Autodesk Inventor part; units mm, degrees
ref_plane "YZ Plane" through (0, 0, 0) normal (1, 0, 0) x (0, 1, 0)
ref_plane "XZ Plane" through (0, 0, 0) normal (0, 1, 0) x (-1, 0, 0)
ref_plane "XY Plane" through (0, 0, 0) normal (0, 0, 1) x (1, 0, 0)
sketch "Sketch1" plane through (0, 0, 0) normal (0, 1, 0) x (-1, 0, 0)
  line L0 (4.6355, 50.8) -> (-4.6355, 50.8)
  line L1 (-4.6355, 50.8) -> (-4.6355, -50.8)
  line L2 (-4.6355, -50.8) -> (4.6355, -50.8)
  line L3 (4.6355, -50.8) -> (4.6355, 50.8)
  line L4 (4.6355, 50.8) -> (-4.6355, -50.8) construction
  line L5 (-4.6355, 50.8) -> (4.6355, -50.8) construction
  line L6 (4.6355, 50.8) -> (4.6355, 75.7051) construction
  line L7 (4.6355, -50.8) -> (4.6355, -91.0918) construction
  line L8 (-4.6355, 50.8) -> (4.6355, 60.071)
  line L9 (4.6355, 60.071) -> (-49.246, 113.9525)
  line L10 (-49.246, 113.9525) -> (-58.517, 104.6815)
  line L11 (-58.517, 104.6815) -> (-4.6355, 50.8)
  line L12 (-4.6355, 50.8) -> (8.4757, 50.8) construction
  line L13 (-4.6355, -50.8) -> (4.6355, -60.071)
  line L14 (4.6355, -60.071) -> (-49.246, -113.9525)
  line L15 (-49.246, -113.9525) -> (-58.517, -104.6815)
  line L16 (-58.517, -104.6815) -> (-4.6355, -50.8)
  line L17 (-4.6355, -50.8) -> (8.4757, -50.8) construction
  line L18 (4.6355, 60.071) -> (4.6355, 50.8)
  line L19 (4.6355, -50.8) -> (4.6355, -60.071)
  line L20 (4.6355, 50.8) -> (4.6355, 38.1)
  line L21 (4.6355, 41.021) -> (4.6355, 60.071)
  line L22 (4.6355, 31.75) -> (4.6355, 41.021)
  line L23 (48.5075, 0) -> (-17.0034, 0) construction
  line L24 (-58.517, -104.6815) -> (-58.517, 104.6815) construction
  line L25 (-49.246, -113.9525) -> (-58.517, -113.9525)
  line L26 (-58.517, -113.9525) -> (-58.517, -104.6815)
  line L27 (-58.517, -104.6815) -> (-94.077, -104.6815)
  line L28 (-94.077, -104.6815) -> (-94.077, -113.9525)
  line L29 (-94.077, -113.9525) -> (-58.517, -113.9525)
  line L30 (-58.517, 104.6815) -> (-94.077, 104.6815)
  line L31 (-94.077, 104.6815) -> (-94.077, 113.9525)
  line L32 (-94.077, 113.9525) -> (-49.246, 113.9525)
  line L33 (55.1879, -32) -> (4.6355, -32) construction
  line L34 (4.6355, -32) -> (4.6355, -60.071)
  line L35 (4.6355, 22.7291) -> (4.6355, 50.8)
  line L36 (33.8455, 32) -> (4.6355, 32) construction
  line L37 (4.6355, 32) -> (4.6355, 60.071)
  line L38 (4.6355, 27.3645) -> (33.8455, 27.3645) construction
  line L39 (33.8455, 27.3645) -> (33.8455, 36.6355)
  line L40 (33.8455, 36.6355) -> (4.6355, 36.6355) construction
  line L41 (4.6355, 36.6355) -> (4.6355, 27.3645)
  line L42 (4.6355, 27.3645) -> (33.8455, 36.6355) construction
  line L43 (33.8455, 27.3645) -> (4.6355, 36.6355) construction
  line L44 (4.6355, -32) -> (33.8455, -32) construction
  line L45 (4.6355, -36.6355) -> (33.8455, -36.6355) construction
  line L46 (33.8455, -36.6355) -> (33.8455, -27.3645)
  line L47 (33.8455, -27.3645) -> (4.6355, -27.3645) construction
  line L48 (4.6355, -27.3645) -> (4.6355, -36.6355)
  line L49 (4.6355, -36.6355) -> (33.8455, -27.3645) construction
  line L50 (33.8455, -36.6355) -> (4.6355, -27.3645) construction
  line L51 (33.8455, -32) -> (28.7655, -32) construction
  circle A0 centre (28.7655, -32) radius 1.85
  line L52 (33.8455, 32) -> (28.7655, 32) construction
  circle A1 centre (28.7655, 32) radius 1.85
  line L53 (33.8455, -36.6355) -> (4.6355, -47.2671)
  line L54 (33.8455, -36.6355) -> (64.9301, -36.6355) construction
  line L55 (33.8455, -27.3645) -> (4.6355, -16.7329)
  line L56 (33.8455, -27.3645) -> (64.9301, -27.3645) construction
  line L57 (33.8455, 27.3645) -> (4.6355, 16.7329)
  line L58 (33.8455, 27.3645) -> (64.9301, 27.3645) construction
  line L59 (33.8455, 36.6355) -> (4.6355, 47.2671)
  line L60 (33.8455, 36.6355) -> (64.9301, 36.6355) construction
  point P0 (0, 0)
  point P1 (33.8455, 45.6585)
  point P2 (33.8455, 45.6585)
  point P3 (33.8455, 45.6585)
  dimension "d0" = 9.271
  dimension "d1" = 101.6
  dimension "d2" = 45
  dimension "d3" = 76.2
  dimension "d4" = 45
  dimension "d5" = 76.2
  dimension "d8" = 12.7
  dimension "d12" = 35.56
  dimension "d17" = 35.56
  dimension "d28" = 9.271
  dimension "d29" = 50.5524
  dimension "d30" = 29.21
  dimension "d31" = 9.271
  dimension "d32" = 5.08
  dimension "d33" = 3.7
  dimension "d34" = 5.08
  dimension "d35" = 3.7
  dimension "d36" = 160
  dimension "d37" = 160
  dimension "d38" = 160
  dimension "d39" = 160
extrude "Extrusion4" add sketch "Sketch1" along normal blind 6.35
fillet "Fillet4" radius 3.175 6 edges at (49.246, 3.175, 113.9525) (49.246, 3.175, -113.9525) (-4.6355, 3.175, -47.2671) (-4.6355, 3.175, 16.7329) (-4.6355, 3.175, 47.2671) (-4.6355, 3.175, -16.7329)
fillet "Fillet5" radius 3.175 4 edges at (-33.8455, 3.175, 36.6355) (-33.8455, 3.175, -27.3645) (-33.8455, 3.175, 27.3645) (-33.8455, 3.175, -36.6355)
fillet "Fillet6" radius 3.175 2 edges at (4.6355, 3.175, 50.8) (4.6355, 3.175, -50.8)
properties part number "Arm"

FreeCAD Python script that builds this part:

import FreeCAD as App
import Part
import Sketcher

V = App.Vector
Q = App.Units.Quantity


def edges_at(feature, points):
    """Names of the edges that pass closest to the given points."""
    edges = feature.Shape.Edges
    near = lambda p: min(range(len(edges)), key=lambda i: edges[i].distToShape(Part.Vertex(*p))[0])
    return sorted({f"Edge{near(p) + 1}" for p in points})


def add_polygon(sketch, points):
    """Adds a closed chain of lines whose ends are joined by coincident constraints."""
    first, n = sketch.GeometryCount, len(points)
    for a, b in zip(points, points[1:] + points[:1]):
        sketch.addGeometry(Part.LineSegment(App.Vector(*a, 0), App.Vector(*b, 0)), False)
    for i in range(n):
        sketch.addConstraint(Sketcher.Constraint("Coincident", first + i, 2, first + (i + 1) % n, 1))

doc = App.newDocument("Part")
body = doc.addObject("PartDesign::Body", "Body")

# Sketch on XZ plane
sketch1 = doc.addObject("Sketcher::SketchObject", "Sketch")
body.addObject(sketch1)
sketch1.AttachmentSupport = (doc.XZ_Plane, [""])
sketch1.MapMode = "FlatFace"
add_polygon(sketch1, [(-4.6355, 47.2671), (-4.6355, 60.071), (49.246, 113.9525), (94.077, 113.9525), (94.077, 104.6815), (58.517, 104.6815), (4.6355, 50.8), (4.6355, -50.8), (58.517, -104.6815), (94.077, -104.6815), (94.077, -113.9525), (49.246, -113.9525), (-4.6355, -60.071), (-4.6355, -47.2671), (-33.8455, -36.6355), (-33.8455, -27.3645), (-4.6355, -16.7329), (-4.6355, 16.7329), (-33.8455, 27.3645), (-33.8455, 36.6355)])  # lines 0-19
sketch1.addGeometry(Part.Circle(V(-28.7655, 32, 0), V(0, 0, 1), 1.85), False)  # 20
sketch1.addGeometry(Part.Circle(V(-28.7655, -32, 0), V(0, 0, 1), 1.85), False)  # 21
sketch1.addConstraint(Sketcher.Constraint("Vertical", 0))
sketch1.addConstraint(Sketcher.Constraint("Horizontal", 2))
sketch1.addConstraint(Sketcher.Constraint("Vertical", 3))
sketch1.addConstraint(Sketcher.Constraint("Horizontal", 4))
sketch1.addConstraint(Sketcher.Constraint("Vertical", 6))
sketch1.addConstraint(Sketcher.Constraint("Horizontal", 8))
sketch1.addConstraint(Sketcher.Constraint("Vertical", 9))
sketch1.addConstraint(Sketcher.Constraint("Horizontal", 10))
sketch1.addConstraint(Sketcher.Constraint("Vertical", 12))
sketch1.addConstraint(Sketcher.Constraint("Vertical", 14))
sketch1.addConstraint(Sketcher.Constraint("Vertical", 16))
sketch1.addConstraint(Sketcher.Constraint("Vertical", 18))
sketch1.addConstraint(Sketcher.Constraint("Equal", 20, 21))
sketch1.addConstraint(Sketcher.Constraint("Symmetric", 20, 3, 21, 3, -1))
sketch1.addConstraint(Sketcher.Constraint("Symmetric", 4, 2, 7, 2, -1))
sketch1.addConstraint(Sketcher.Constraint("Symmetric", 2, 2, 9, 2, -1))
sketch1.addConstraint(Sketcher.Constraint("Symmetric", 0, 2, 11, 2, -1))
sketch1.addConstraint(Sketcher.Constraint("Symmetric", 14, 2, 17, 2, -1))
sketch1.addConstraint(Sketcher.Constraint("Parallel", 1, 5))
sketch1.addConstraint(Sketcher.Constraint("Perpendicular", 5, 7))
sketch1.addConstraint(Sketcher.Constraint("Parallel", 7, 11))
sketch1.addConstraint(Sketcher.Constraint("Parallel", 13, 17))
sketch1.addConstraint(Sketcher.Constraint("Parallel", 15, 19))
sketch1.addConstraint(Sketcher.Constraint("Vertical", 1, 2, 10, 2))
sketch1.addConstraint(Sketcher.Constraint("Vertical", 12, 2, 15, 2))
sketch1.addConstraint(Sketcher.Constraint("Equal", 0, 12))
sketch1.addConstraint(Sketcher.Constraint("Equal", 9, 14))
sketch1.addConstraint(Sketcher.Constraint("Equal", 14, 18))
sketch1.addConstraint(Sketcher.Constraint("Equal", 1, 5))
sketch1.addConstraint(Sketcher.Constraint("DistanceY", 6, 2, 6, 1, Q("4 in")))
sketch1.addConstraint(Sketcher.Constraint("Distance", 1, Q("3 in")))
sketch1.addConstraint(Sketcher.Constraint("DistanceX", 4, 2, 4, 1, Q("1.4 in")))
sketch1.addConstraint(Sketcher.Constraint("Angle", 13, Q("160 deg")))
sketch1.addConstraint(Sketcher.Constraint("DistanceX", 13, 2, 21, 3, Q("0.2 in")))
sketch1.addConstraint(Sketcher.Constraint("Diameter", 20, Q("3.7 mm")))
sketch1.addConstraint(Sketcher.Constraint("DistanceY", 3, 2, 3, 1, Q("0.365 in")))
sketch1.addConstraint(Sketcher.Constraint("DistanceX", 13, 2, 12, 2, Q("1.15 in")))
sketch1.addConstraint(Sketcher.Constraint("DistanceX", 1, 2, 4, 2, Q("0.365 in")))
sketch1.addConstraint(Sketcher.Constraint("DistanceY", 0, 1, 0, 2, Q("0.5041 in")))
sketch1.addConstraint(Sketcher.Constraint("DistanceX", 20, 3, -1, 1, Q("1.1325 in")))
sketch1.addConstraint(Sketcher.Constraint("DistanceY", 13, 2, 21, 3, Q("0.1825 in")))
pad1 = doc.addObject("PartDesign::Pad", "Pad")
body.addObject(pad1)
pad1.Profile = sketch1
pad1.Length = Q("0.25 in")
pad1.Reversed = True
doc.recompute()

fillet = doc.addObject("PartDesign::Fillet", "Fillet")
body.addObject(fillet)
fillet.Base = (pad1, edges_at(pad1, [
    (49.246, 3.175, 113.953),
    (49.246, 3.175, -113.953),
    (-4.636, 3.175, -47.267),
    (-4.636, 3.175, 16.733),
    (-4.636, 3.175, 47.267),
    (-4.636, 3.175, -16.733),
]))
fillet.Radius = Q("0.125 in")
doc.recompute()

fillet2 = doc.addObject("PartDesign::Fillet", "Fillet001")
body.addObject(fillet2)
fillet2.Base = (fillet, edges_at(fillet, [
    (-33.846, 3.175, 36.636),
    (-33.846, 3.175, -27.364),
    (-33.846, 3.175, 27.364),
    (-33.846, 3.175, -36.636),
]))
fillet2.Radius = Q("0.125 in")
doc.recompute()

fillet3 = doc.addObject("PartDesign::Fillet", "Fillet002")
body.addObject(fillet3)
fillet3.Base = (fillet2, edges_at(fillet2, [(4.636, 3.175, 50.8), (4.636, 3.175, -50.8)]))
fillet3.Radius = Q("0.125 in")

doc.recompute()
